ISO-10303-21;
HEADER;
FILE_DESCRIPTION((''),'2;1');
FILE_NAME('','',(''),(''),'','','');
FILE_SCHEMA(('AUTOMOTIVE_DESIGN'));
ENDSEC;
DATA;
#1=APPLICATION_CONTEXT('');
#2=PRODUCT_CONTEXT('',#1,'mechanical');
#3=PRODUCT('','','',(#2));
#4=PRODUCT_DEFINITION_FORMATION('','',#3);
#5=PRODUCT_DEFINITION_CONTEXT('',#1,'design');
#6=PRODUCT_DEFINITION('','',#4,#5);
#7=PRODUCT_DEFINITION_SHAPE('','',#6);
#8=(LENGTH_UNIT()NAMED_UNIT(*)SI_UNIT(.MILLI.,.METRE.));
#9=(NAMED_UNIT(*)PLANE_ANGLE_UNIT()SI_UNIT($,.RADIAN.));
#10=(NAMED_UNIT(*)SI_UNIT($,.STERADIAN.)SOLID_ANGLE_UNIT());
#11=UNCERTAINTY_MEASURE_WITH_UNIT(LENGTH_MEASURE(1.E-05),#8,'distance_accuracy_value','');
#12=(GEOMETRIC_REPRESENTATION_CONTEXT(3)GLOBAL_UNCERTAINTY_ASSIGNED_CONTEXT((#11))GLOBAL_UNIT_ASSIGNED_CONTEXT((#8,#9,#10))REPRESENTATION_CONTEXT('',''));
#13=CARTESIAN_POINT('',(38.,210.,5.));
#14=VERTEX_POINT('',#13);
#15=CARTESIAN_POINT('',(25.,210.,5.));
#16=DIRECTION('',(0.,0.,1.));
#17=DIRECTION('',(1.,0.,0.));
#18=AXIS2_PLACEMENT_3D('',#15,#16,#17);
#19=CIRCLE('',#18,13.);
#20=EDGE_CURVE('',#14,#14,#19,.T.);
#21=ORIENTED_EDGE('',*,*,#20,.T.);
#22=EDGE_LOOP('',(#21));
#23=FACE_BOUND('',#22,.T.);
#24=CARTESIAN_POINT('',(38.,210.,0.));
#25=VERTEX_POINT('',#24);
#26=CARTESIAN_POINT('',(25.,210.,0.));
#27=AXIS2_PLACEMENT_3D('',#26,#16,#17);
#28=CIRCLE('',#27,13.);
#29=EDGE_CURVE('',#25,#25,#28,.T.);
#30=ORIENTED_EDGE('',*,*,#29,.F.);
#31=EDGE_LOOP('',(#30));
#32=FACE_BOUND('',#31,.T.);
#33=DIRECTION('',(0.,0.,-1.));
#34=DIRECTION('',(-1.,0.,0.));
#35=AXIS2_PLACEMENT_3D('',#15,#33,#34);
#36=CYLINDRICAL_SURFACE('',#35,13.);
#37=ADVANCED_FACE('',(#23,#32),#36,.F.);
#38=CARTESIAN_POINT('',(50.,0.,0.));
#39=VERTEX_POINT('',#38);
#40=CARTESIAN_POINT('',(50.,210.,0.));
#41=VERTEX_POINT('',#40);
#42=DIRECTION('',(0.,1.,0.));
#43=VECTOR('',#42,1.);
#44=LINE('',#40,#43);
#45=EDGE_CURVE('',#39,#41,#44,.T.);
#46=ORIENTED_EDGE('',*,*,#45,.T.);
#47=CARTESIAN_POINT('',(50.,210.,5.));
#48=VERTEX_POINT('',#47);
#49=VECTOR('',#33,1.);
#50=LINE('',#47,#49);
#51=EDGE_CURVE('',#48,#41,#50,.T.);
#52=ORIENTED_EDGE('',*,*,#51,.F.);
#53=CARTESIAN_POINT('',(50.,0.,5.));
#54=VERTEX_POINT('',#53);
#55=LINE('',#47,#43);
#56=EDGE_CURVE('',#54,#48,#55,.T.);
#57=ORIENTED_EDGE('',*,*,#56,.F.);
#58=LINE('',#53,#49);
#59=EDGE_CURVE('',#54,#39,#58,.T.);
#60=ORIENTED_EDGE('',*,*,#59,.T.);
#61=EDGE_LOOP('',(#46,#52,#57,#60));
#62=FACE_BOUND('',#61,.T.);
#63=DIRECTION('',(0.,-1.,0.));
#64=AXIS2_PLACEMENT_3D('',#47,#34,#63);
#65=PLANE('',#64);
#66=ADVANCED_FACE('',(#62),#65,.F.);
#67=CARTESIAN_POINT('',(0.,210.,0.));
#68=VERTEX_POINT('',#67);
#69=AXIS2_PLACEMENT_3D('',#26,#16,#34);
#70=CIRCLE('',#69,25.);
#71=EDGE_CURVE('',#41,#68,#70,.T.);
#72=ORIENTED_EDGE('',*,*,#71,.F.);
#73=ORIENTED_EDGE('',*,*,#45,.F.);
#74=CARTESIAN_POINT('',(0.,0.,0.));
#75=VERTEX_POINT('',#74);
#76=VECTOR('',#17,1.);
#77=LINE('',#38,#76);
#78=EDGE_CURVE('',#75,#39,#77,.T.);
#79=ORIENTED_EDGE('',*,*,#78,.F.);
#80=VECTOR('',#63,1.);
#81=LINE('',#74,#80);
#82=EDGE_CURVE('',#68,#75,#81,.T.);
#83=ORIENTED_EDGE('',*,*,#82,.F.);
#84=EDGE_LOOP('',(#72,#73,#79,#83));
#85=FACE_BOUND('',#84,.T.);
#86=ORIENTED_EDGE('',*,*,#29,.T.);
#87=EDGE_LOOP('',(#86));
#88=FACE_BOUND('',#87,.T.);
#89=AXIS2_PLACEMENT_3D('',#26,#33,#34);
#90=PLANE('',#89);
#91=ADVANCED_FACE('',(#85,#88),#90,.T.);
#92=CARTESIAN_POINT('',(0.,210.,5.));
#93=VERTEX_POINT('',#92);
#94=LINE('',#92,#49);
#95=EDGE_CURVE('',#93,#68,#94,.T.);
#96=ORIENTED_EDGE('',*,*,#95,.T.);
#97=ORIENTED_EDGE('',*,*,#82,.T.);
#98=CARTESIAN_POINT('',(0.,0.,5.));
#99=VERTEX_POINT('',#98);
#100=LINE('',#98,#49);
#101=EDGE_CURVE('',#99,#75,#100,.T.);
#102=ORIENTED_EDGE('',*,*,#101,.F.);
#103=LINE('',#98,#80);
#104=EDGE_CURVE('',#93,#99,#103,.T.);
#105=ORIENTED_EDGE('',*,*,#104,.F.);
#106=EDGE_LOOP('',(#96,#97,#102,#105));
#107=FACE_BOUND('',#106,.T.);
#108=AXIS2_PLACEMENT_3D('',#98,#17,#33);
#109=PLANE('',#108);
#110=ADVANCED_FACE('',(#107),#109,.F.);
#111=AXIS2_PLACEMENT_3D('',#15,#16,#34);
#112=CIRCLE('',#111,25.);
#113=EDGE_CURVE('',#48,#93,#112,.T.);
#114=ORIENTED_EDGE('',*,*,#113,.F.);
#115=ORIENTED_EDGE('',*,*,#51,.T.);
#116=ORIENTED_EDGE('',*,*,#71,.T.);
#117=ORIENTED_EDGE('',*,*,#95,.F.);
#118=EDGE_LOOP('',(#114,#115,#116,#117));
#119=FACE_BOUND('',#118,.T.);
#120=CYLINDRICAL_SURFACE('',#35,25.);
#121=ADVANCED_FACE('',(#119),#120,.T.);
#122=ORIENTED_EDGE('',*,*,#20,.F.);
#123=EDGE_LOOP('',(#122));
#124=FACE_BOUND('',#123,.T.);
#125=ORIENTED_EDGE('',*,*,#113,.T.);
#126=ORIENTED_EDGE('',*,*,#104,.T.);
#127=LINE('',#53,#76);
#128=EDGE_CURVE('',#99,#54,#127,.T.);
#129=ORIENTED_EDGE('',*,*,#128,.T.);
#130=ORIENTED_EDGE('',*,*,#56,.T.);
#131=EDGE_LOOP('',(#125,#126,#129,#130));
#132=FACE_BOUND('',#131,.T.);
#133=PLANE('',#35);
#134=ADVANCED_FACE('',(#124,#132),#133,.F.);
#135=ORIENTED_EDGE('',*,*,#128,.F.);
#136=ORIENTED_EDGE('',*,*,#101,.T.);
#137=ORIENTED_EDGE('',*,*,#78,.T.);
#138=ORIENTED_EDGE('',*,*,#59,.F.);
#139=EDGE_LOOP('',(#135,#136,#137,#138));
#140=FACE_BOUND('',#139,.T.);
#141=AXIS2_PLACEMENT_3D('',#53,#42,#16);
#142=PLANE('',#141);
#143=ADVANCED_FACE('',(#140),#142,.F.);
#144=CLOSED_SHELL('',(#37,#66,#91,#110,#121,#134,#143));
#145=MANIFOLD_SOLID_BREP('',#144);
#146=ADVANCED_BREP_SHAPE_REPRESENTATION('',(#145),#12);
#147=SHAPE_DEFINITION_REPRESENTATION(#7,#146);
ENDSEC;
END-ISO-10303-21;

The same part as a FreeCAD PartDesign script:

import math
import FreeCAD as App
import Part
import Sketcher
from FreeCAD import Vector

doc = App.newDocument("Part")
params = doc.addObject("Spreadsheet::Sheet", "Params")
for row, (alias, value) in enumerate([
    ("sketch1_diameter", "26 mm"),
    ("sketch1_radius", "25 mm"),
    ("sketch1_height", "210 mm"),
    ("pad1_length", "5 mm"),
], start=1):
    params.set(f"A{row}", alias)
    params.set(f"B{row}", "=" + value)
    params.setAlias(f"B{row}", alias)

body = doc.addObject("PartDesign::Body", "Body")

# Sketch on XY plane
sketch1 = body.newObject("Sketcher::SketchObject", "Sketch")
sketch1.AttachmentSupport = (doc.getObject("XY_Plane"), [""])
sketch1.MapMode = "FlatFace"
sketch1.addGeometry([
    Part.LineSegment(Vector(0, 210, 0), Vector(0, 0, 0)),  # 0
    Part.LineSegment(Vector(0, 0, 0), Vector(50, 0, 0)),  # 1
    Part.LineSegment(Vector(50, 0, 0), Vector(50, 210, 0)),  # 2
    Part.ArcOfCircle(Part.Circle(Vector(25, 210, 0), Vector(0, 0, 1), 25), math.radians(0), math.radians(180)),  # 3
    Part.Circle(Vector(25, 210, 0), Vector(0, 0, 1), 13),  # 4
], False)
sketch1.addConstraint([
    Sketcher.Constraint("Coincident", 0, 2, 1, 1),
    Sketcher.Constraint("Coincident", 1, 2, 2, 1),
    Sketcher.Constraint("Tangent", 2, 2, 3, 1),
    Sketcher.Constraint("Tangent", 3, 2, 0, 1),
    Sketcher.Constraint("Vertical", 0),
    Sketcher.Constraint("Horizontal", 1),
    Sketcher.Constraint("Vertical", 2),
    Sketcher.Constraint("Coincident", 0, 2, -1, 1),
    Sketcher.Constraint("Coincident", 4, 3, 3, 3),
    Sketcher.Constraint("Diameter", 4, 26.0),
    Sketcher.Constraint("Radius", 3, 25.0),
    Sketcher.Constraint("DistanceY", 0, 2, 0, 1, 210.0),
])
sketch1.setExpression("Constraints[9]", "Params.sketch1_diameter")
sketch1.setExpression("Constraints[10]", "Params.sketch1_radius")
sketch1.setExpression("Constraints[11]", "Params.sketch1_height")
pad1 = body.newObject("PartDesign::Pad", "Pad")
pad1.Profile = sketch1
pad1.setExpression("Length", "Params.pad1_length")

doc.recompute()
